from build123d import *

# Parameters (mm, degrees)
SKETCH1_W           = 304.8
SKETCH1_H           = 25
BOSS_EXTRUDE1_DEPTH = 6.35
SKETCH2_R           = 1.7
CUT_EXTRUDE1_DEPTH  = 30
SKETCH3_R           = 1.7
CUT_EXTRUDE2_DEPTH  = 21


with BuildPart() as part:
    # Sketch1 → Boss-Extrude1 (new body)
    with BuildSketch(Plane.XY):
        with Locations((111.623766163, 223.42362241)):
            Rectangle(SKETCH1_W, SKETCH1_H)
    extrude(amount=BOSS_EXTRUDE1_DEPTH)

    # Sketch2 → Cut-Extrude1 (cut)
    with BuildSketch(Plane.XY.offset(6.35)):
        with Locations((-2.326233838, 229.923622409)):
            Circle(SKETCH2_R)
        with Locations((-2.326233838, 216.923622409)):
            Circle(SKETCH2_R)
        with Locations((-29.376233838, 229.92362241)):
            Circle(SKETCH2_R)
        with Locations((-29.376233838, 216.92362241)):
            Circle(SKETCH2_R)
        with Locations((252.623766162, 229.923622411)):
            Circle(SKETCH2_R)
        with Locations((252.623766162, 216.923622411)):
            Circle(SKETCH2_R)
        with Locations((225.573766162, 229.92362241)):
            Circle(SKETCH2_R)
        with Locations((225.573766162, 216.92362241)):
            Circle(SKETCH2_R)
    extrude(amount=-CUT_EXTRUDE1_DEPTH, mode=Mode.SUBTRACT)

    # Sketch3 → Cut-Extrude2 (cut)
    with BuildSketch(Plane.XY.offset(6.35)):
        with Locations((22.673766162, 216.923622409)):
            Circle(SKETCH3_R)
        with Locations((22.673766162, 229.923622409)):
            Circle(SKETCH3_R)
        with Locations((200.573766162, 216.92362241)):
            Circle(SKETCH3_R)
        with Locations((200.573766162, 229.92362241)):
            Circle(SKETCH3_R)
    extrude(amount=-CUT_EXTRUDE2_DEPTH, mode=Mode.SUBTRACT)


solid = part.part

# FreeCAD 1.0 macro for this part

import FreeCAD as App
import Part
import Sketcher

V = App.Vector
Q = App.Units.Quantity


def add_polygon(sketch, points):
    """Adds a closed chain of lines whose ends are joined by coincident constraints."""
    first, n = sketch.GeometryCount, len(points)
    for a, b in zip(points, points[1:] + points[:1]):
        sketch.addGeometry(Part.LineSegment(App.Vector(*a, 0), App.Vector(*b, 0)), False)
    for i in range(n):
        sketch.addConstraint(Sketcher.Constraint("Coincident", first + i, 2, first + (i + 1) % n, 1))

doc = App.newDocument("Part")
body = doc.addObject("PartDesign::Body", "Body")

sketch1 = body.newObject("Sketcher::SketchObject", "Sketch")
sketch1.AttachmentSupport = (doc.getObject("XY_Plane"), [""])
sketch1.MapMode = "FlatFace"
add_polygon(sketch1, [(-40.776234, 235.923622), (-40.776234, 210.923622), (264.023766, 210.923622), (264.023766, 235.923622)])
sketch1.addConstraint([
    Sketcher.Constraint("Vertical", 0),
    Sketcher.Constraint("Horizontal", 1),
    Sketcher.Constraint("Vertical", 2),
    Sketcher.Constraint("Horizontal", 3),
    Sketcher.Constraint("DistanceY", 0, 2, 0, 1, Q("25 mm")),
    Sketcher.Constraint("DistanceX", 1, 1, 1, 2, Q("304.8 mm")),
    Sketcher.Constraint("DistanceX", 0, 2, -1, 1, Q("40.776234 mm")),
    Sketcher.Constraint("DistanceY", -1, 1, 0, 2, Q("210.923622 mm")),
])
pad1 = body.newObject("PartDesign::Pad", "Pad")
pad1.Profile = sketch1
pad1.Length = 6.35

sketch2 = body.newObject("Sketcher::SketchObject", "Sketch001")
sketch2.AttachmentSupport = (doc.getObject("XY_Plane"), [""])
sketch2.MapMode = "FlatFace"
sketch2.AttachmentOffset = App.Placement(V(0, 0, 6.35), App.Rotation())
sketch2.addGeometry([
    Part.Circle(V(-2.326234, 229.923622, 0), V(0, 0, 1), 1.7),
    Part.Circle(V(-2.326234, 216.923622, 0), V(0, 0, 1), 1.7),
    Part.Circle(V(-29.376234, 229.923622, 0), V(0, 0, 1), 1.7),
    Part.Circle(V(-29.376234, 216.923622, 0), V(0, 0, 1), 1.7),
    Part.Circle(V(252.623766, 229.923622, 0), V(0, 0, 1), 1.7),
    Part.Circle(V(252.623766, 216.923622, 0), V(0, 0, 1), 1.7),
    Part.Circle(V(225.573766, 229.923622, 0), V(0, 0, 1), 1.7),
    Part.Circle(V(225.573766, 216.923622, 0), V(0, 0, 1), 1.7),
], False)
sketch2.addConstraint([
    Sketcher.Constraint("Equal", 0, 1),
    Sketcher.Constraint("Equal", 1, 2),
    Sketcher.Constraint("Equal", 2, 3),
    Sketcher.Constraint("Equal", 3, 4),
    Sketcher.Constraint("Equal", 4, 5),
    Sketcher.Constraint("Equal", 5, 6),
    Sketcher.Constraint("Equal", 6, 7),
    Sketcher.Constraint("Horizontal", 0, 3, 2, 3),
    Sketcher.Constraint("Horizontal", 1, 3, 3, 3),
    Sketcher.Constraint("Horizontal", 2, 3, 4, 3),
    Sketcher.Constraint("Horizontal", 3, 3, 5, 3),
    Sketcher.Constraint("Horizontal", 4, 3, 6, 3),
    Sketcher.Constraint("Horizontal", 5, 3, 7, 3),
    Sketcher.Constraint("Vertical", 0, 3, 1, 3),
    Sketcher.Constraint("Vertical", 2, 3, 3, 3),
    Sketcher.Constraint("Vertical", 4, 3, 5, 3),
    Sketcher.Constraint("Vertical", 6, 3, 7, 3),
    Sketcher.Constraint("Diameter", 0, Q("3.4 mm")),
    Sketcher.Constraint("DistanceY", 1, 3, 0, 3, Q("13 mm")),
    Sketcher.Constraint("DistanceX", 2, 3, 4, 3, Q("282 mm")),
    Sketcher.Constraint("DistanceX", 0, 3, 6, 3, Q("227.9 mm")),
    Sketcher.Constraint("DistanceX", 2, 3, 0, 3, Q("27.05 mm")),
    Sketcher.Constraint("DistanceX", 0, 3, -1, 1, Q("2.326234 mm")),
    Sketcher.Constraint("DistanceY", -1, 1, 0, 3, Q("229.923622 mm")),
])
pocket1 = body.newObject("PartDesign::Pocket", "Pocket")
pocket1.Profile = sketch2
pocket1.Length = 30

sketch3 = body.newObject("Sketcher::SketchObject", "Sketch002")
sketch3.AttachmentSupport = (doc.getObject("XY_Plane"), [""])
sketch3.MapMode = "FlatFace"
sketch3.AttachmentOffset = App.Placement(V(0, 0, 6.35), App.Rotation())
sketch3.addGeometry([
    Part.Circle(V(22.673766, 216.923622, 0), V(0, 0, 1), 1.7),
    Part.Circle(V(22.673766, 229.923622, 0), V(0, 0, 1), 1.7),
    Part.Circle(V(200.573766, 216.923622, 0), V(0, 0, 1), 1.7),
    Part.Circle(V(200.573766, 229.923622, 0), V(0, 0, 1), 1.7),
], False)
sketch3.addConstraint([
    Sketcher.Constraint("Equal", 0, 1),
    Sketcher.Constraint("Equal", 1, 2),
    Sketcher.Constraint("Equal", 2, 3),
    Sketcher.Constraint("Horizontal", 0, 3, 2, 3),
    Sketcher.Constraint("Horizontal", 1, 3, 3, 3),
    Sketcher.Constraint("Vertical", 0, 3, 1, 3),
    Sketcher.Constraint("Vertical", 2, 3, 3, 3),
    Sketcher.Constraint("Diameter", 0, Q("3.4 mm")),
    Sketcher.Constraint("DistanceY", 0, 3, 1, 3, Q("13 mm")),
    Sketcher.Constraint("DistanceX", 0, 3, 2, 3, Q("177.9 mm")),
    Sketcher.Constraint("DistanceX", -1, 1, 0, 3, Q("22.673766 mm")),
    Sketcher.Constraint("DistanceY", -1, 1, 0, 3, Q("216.923622 mm")),
])
pocket2 = body.newObject("PartDesign::Pocket", "Pocket001")
pocket2.Profile = sketch3
pocket2.Length = 21

doc.recompute()
